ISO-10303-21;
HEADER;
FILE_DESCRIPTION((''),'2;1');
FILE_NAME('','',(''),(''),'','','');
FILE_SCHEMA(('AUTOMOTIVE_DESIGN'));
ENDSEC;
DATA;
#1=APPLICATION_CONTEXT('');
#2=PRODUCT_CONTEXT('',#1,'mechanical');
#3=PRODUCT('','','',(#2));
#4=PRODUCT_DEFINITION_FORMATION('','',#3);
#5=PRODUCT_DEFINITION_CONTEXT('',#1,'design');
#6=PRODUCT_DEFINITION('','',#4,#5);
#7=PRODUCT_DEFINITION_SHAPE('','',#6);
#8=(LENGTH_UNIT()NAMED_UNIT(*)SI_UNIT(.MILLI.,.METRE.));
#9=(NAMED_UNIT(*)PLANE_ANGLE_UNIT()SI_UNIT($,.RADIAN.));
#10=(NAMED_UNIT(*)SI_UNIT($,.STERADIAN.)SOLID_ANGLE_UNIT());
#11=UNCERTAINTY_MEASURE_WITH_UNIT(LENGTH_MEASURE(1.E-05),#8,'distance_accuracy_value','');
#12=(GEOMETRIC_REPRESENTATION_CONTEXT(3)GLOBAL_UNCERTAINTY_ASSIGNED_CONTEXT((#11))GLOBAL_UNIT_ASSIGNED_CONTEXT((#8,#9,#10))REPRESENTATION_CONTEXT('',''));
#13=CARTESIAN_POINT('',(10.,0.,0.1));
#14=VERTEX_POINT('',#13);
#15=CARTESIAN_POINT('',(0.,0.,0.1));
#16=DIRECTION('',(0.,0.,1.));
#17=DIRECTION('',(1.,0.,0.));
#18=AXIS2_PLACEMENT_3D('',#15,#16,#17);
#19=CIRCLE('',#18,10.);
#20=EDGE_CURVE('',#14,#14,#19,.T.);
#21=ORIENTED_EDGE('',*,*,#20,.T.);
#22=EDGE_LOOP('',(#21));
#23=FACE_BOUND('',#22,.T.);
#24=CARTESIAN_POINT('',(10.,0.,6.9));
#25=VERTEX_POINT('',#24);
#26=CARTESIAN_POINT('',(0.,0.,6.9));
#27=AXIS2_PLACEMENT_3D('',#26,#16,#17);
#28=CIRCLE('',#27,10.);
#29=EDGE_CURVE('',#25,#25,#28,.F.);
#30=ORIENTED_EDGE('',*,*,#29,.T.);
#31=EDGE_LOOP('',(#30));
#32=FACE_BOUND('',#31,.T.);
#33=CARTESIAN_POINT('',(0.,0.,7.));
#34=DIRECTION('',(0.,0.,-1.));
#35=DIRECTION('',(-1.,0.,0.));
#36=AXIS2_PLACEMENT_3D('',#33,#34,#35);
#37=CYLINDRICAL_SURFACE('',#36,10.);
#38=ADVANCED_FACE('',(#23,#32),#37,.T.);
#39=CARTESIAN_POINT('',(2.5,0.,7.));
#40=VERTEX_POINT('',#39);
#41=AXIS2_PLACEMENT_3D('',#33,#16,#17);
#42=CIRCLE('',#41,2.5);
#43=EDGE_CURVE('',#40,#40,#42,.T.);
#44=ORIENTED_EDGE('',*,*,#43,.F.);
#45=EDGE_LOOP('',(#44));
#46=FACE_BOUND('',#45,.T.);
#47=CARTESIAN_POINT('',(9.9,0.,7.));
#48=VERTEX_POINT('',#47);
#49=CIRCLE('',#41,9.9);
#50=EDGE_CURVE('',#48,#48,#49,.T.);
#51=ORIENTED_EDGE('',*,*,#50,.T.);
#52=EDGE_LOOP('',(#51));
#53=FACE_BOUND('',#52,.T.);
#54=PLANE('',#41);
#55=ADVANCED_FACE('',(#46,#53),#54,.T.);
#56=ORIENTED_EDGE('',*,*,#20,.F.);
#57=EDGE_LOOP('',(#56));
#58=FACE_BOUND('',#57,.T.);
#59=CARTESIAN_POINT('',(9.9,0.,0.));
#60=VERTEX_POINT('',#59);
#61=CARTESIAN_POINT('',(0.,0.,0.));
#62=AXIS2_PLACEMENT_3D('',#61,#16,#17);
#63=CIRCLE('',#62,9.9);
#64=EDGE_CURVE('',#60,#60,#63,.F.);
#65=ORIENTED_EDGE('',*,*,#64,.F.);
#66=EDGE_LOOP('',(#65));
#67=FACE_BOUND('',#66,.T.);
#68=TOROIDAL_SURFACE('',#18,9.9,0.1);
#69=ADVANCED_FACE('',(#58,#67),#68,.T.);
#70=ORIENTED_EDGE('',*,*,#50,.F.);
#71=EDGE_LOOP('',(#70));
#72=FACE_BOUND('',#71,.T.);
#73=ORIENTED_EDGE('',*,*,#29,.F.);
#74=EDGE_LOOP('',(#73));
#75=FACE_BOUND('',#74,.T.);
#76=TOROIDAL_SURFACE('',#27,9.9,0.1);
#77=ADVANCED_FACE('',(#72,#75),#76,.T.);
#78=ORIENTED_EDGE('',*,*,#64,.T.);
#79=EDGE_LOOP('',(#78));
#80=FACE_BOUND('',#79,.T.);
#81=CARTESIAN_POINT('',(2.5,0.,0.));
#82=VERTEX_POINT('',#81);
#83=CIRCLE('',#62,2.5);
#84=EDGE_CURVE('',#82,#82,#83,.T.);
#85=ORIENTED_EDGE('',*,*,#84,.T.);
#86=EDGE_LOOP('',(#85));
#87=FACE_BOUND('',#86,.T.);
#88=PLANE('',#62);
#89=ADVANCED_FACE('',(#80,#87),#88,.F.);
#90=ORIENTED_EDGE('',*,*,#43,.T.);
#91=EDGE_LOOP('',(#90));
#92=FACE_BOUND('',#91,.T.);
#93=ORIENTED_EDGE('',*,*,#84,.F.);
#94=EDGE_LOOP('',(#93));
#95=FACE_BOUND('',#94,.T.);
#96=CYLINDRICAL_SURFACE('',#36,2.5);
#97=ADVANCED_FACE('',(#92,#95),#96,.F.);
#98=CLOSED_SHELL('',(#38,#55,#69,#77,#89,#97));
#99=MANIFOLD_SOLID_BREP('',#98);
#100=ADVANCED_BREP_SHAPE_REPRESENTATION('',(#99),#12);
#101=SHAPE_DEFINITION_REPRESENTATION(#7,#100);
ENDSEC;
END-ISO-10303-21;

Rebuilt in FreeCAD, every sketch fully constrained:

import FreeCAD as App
import Part
import Sketcher


def edges_at(feature, points):
    """Names of the edges that pass closest to the given points."""
    edges = feature.Shape.Edges
    near = lambda p: min(range(len(edges)), key=lambda i: edges[i].distToShape(Part.Vertex(*p))[0])
    return sorted({f"Edge{near(p) + 1}" for p in points})

doc = App.newDocument("Part")
body = doc.addObject("PartDesign::Body", "Body")

# Sketch on XY plane
sketch1 = body.newObject("Sketcher::SketchObject", "Sketch")
sketch1.AttachmentSupport = (doc.getObject("XY_Plane"), [""])
sketch1.MapMode = "FlatFace"
sketch1.addGeometry(Part.Circle(App.Vector(0, 0, 0), App.Vector(0, 0, 1), 10), False)
sketch1.addGeometry(Part.Circle(App.Vector(0, 0, 0), App.Vector(0, 0, 1), 2.5), False)
sketch1.addConstraint(Sketcher.Constraint("Coincident", 0, 3, -1, 1))
sketch1.addConstraint(Sketcher.Constraint("Coincident", 1, 3, -1, 1))
sketch1.addConstraint(Sketcher.Constraint("Diameter", 0, 20.0))
sketch1.addConstraint(Sketcher.Constraint("Diameter", 1, 5.0))
pad1 = body.newObject("PartDesign::Pad", "Pad")
pad1.Profile = sketch1
pad1.Length = 7
doc.recompute()

fillet = body.newObject("PartDesign::Fillet", "Fillet")
fillet.Base = (pad1, edges_at(pad1, [(-10, 0, 0), (-10, 0, 7)]))
fillet.Radius = 0.1

doc.recompute()
